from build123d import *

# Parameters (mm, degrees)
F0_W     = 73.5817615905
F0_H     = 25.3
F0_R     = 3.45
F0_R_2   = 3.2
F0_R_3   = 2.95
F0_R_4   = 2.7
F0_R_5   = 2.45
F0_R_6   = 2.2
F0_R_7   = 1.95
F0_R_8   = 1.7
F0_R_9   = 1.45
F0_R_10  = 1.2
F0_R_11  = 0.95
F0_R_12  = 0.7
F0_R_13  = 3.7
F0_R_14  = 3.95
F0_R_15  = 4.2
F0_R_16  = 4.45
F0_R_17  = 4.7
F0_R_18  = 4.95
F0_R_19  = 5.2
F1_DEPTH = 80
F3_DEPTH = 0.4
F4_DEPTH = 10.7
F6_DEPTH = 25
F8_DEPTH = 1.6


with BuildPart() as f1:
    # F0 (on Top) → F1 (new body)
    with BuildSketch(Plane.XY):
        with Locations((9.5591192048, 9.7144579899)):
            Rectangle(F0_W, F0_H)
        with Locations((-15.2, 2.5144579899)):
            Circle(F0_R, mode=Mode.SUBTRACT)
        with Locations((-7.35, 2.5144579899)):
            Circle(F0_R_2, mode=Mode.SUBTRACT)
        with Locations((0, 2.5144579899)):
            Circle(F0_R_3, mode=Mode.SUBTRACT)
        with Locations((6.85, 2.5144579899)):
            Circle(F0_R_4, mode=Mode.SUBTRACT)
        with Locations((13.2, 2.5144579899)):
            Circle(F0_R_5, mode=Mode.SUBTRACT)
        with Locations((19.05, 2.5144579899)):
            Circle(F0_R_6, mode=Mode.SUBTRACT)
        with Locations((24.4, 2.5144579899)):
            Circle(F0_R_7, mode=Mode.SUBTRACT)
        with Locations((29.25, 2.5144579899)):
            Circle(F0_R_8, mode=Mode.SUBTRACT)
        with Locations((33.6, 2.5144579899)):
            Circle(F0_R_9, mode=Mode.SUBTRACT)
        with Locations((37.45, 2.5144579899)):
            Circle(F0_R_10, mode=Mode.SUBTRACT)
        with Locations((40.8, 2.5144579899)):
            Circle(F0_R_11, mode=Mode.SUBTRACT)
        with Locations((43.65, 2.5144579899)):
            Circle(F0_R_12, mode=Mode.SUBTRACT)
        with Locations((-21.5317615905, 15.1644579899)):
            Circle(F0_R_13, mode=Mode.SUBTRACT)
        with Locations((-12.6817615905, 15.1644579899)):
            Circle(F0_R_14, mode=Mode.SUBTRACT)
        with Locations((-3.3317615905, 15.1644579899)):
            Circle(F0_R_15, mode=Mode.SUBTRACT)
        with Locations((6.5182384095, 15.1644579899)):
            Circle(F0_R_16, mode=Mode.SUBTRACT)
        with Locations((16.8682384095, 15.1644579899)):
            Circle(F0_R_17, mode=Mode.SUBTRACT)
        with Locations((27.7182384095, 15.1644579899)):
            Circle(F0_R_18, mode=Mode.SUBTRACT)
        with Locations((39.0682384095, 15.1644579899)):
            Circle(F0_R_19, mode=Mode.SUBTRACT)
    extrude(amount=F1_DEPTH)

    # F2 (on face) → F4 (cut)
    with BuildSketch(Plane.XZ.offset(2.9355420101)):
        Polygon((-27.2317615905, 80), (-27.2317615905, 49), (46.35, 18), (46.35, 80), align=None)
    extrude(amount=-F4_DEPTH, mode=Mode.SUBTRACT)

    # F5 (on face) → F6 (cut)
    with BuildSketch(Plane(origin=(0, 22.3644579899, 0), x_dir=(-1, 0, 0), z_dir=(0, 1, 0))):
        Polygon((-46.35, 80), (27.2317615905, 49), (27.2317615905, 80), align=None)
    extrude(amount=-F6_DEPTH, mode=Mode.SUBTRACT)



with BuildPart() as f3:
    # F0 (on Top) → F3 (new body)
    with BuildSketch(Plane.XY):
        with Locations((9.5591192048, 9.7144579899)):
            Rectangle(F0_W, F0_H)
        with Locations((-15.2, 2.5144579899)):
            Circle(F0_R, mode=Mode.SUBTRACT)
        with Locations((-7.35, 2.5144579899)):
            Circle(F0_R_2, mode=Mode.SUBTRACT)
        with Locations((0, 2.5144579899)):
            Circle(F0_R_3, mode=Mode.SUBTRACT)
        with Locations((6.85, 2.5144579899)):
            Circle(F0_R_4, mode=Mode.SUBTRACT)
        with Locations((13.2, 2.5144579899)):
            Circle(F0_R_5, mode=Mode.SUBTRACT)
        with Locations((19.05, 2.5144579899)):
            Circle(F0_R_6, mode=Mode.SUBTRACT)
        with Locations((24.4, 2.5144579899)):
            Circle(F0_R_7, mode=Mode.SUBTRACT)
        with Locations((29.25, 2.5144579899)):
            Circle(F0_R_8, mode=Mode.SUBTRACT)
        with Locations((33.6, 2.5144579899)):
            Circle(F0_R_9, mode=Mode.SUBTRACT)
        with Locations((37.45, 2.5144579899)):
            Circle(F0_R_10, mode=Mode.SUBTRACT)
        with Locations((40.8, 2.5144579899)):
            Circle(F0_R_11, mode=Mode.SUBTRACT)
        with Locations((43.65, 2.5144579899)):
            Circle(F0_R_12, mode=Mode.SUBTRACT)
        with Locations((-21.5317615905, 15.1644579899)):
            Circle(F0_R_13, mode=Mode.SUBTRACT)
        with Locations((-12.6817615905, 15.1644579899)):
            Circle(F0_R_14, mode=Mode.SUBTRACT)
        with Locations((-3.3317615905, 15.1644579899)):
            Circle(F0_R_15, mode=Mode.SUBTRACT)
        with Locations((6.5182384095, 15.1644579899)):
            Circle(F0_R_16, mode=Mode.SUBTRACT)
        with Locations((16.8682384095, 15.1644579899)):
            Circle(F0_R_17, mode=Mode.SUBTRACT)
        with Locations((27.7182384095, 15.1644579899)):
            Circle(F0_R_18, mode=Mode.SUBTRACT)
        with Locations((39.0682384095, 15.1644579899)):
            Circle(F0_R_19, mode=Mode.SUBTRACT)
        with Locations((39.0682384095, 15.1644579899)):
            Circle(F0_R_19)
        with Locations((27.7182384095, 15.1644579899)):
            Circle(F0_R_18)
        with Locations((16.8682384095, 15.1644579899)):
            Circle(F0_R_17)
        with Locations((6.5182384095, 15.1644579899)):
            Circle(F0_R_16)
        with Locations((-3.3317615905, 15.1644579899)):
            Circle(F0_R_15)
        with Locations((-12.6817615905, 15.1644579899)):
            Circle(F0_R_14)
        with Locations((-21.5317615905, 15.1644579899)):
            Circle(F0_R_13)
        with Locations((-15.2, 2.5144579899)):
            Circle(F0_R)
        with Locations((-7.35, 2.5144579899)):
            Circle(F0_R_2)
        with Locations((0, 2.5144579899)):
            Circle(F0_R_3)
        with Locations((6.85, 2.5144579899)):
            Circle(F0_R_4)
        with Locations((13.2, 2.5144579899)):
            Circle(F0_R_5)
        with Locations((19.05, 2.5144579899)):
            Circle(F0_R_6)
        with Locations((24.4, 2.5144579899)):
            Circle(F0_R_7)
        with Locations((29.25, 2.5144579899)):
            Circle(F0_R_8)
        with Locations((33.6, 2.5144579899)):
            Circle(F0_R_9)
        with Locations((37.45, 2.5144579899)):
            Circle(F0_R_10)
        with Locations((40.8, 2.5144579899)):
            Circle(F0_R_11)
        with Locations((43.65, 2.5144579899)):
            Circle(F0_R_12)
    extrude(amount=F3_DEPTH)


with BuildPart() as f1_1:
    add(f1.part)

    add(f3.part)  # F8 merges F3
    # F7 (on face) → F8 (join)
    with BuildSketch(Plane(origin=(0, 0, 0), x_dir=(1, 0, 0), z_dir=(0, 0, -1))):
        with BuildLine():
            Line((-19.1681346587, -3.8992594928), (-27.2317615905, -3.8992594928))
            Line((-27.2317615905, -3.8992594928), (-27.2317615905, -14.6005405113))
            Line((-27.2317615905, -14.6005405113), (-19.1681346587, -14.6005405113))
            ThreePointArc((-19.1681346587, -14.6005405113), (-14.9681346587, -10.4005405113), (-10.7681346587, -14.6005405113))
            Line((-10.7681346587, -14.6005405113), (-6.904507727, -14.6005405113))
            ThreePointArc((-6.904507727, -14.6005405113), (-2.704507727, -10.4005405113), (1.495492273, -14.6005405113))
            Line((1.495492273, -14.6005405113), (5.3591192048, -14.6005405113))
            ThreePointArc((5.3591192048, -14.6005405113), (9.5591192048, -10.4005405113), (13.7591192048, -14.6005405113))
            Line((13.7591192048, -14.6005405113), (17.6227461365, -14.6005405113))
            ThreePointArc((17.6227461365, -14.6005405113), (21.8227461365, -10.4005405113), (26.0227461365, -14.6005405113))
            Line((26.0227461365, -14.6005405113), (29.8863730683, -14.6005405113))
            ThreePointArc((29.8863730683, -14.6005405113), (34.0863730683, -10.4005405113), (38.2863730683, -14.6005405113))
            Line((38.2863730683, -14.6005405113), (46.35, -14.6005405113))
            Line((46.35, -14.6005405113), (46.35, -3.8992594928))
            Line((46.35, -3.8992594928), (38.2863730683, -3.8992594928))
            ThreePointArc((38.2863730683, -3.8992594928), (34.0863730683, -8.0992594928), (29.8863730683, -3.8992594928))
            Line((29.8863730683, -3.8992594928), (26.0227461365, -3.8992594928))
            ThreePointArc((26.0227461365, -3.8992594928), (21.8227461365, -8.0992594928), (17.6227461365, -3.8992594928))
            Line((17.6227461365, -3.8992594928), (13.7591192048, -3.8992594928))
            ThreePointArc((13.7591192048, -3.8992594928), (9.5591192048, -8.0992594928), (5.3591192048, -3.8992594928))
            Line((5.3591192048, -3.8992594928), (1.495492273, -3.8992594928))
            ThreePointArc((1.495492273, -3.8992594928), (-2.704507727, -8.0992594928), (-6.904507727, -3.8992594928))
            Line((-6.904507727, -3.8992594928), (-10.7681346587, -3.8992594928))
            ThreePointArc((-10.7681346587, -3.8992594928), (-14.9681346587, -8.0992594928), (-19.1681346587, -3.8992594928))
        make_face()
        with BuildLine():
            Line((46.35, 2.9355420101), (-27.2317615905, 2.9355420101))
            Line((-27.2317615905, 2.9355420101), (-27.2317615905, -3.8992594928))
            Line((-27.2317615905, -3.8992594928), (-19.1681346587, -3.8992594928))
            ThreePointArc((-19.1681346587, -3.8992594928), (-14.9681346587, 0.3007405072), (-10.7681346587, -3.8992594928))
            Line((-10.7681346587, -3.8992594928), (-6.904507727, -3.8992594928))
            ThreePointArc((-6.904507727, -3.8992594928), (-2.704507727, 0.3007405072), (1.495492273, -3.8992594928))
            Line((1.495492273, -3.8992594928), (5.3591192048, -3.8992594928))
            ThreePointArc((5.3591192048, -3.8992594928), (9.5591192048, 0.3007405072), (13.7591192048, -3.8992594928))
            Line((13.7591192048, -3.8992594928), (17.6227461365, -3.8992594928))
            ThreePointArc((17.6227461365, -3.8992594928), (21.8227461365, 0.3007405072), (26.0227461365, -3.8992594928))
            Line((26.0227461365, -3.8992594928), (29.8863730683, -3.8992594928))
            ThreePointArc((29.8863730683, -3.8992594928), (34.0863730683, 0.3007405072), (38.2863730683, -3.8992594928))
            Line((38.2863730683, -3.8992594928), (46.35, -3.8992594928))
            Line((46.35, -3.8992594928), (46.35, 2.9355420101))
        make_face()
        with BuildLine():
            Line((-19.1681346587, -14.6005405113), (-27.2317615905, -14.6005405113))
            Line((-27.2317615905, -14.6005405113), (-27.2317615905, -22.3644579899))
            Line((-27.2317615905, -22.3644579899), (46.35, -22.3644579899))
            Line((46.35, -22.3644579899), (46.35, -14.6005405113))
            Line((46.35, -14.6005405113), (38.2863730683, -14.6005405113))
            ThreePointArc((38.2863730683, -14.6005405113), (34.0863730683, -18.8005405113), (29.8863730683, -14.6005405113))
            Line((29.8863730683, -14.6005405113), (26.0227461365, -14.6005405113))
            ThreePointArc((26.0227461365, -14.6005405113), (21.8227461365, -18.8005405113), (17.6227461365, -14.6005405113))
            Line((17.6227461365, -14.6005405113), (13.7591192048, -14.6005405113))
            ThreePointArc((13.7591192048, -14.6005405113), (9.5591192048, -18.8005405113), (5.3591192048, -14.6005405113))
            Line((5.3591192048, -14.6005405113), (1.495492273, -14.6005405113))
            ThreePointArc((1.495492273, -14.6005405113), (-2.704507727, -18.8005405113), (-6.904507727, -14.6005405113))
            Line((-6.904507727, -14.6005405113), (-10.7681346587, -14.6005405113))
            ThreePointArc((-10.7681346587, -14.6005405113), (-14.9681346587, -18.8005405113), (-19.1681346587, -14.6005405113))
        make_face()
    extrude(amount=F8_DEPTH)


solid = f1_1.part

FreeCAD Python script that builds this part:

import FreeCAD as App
import Part
import Sketcher

V = App.Vector
Q = App.Units.Quantity

doc = App.newDocument("Part")
body = doc.addObject("PartDesign::Body", "Body")

# Sketch on XY plane
sketch1 = body.newObject("Sketcher::SketchObject", "Sketch")
sketch1.AttachmentSupport = (doc.getObject("XY_Plane"), [""])
sketch1.MapMode = "FlatFace"
sketch1.addGeometry([
    Part.LineSegment(V(-27.2, 22.4, 0), V(-27.2, -2.9, 0)),  # 0
    Part.LineSegment(V(-27.2, -2.9, 0), V(46.4, -2.9, 0)),  # 1
    Part.LineSegment(V(46.4, -2.9, 0), V(46.4, 22.4, 0)),  # 2
    Part.LineSegment(V(46.4, 22.4, 0), V(-27.2, 22.4, 0)),  # 3
    Part.Circle(V(-15.2, 2.5, 0), V(0, 0, 1), 3.5),  # 4
    Part.Circle(V(-7.3, 2.5, 0), V(0, 0, 1), 3.2),  # 5
    Part.Circle(V(0, 2.5, 0), V(0, 0, 1), 3),  # 6
    Part.Circle(V(6.8, 2.5, 0), V(0, 0, 1), 2.7),  # 7
    Part.Circle(V(13.2, 2.5, 0), V(0, 0, 1), 2.5),  # 8
    Part.Circle(V(19.1, 2.5, 0), V(0, 0, 1), 2.2),  # 9
    Part.Circle(V(24.4, 2.5, 0), V(0, 0, 1), 1.9),  # 10
    Part.Circle(V(29.2, 2.5, 0), V(0, 0, 1), 1.7),  # 11
    Part.Circle(V(33.6, 2.5, 0), V(0, 0, 1), 1.4),  # 12
    Part.Circle(V(37.5, 2.5, 0), V(0, 0, 1), 1.2),  # 13
    Part.Circle(V(40.8, 2.5, 0), V(0, 0, 1), 0.9),  # 14
    Part.Circle(V(43.6, 2.5, 0), V(0, 0, 1), 0.7),  # 15
    Part.Circle(V(-21.5, 15.2, 0), V(0, 0, 1), 3.7),  # 16
    Part.Circle(V(-12.7, 15.2, 0), V(0, 0, 1), 4),  # 17
    Part.Circle(V(-3.3, 15.2, 0), V(0, 0, 1), 4.2),  # 18
    Part.Circle(V(6.5, 15.2, 0), V(0, 0, 1), 4.5),  # 19
    Part.Circle(V(16.9, 15.2, 0), V(0, 0, 1), 4.7),  # 20
    Part.Circle(V(27.7, 15.2, 0), V(0, 0, 1), 5),  # 21
    Part.Circle(V(39.1, 15.2, 0), V(0, 0, 1), 5.2),  # 22
], False)
sketch1.addConstraint([
    Sketcher.Constraint("Coincident", 0, 2, 1, 1),
    Sketcher.Constraint("Coincident", 1, 2, 2, 1),
    Sketcher.Constraint("Coincident", 2, 2, 3, 1),
    Sketcher.Constraint("Coincident", 3, 2, 0, 1),
    Sketcher.Constraint("Vertical", 0),
    Sketcher.Constraint("Horizontal", 1),
    Sketcher.Constraint("Vertical", 2),
    Sketcher.Constraint("Horizontal", 3),
    Sketcher.Constraint("PointOnObject", 6, 3, -2),
    Sketcher.Constraint("Horizontal", 4, 3, 5, 3),
    Sketcher.Constraint("Horizontal", 5, 3, 6, 3),
    Sketcher.Constraint("Horizontal", 6, 3, 7, 3),
    Sketcher.Constraint("Horizontal", 7, 3, 8, 3),
    Sketcher.Constraint("Horizontal", 8, 3, 9, 3),
    Sketcher.Constraint("Horizontal", 9, 3, 10, 3),
    Sketcher.Constraint("Horizontal", 10, 3, 11, 3),
    Sketcher.Constraint("Horizontal", 11, 3, 12, 3),
    Sketcher.Constraint("Horizontal", 12, 3, 13, 3),
    Sketcher.Constraint("Horizontal", 13, 3, 14, 3),
    Sketcher.Constraint("Horizontal", 14, 3, 15, 3),
    Sketcher.Constraint("Horizontal", 16, 3, 17, 3),
    Sketcher.Constraint("Horizontal", 17, 3, 18, 3),
    Sketcher.Constraint("Horizontal", 18, 3, 19, 3),
    Sketcher.Constraint("Horizontal", 19, 3, 20, 3),
    Sketcher.Constraint("Horizontal", 20, 3, 21, 3),
    Sketcher.Constraint("Horizontal", 21, 3, 22, 3),
    Sketcher.Constraint("Diameter", 4, Q("6.9 mm")),
    Sketcher.Constraint("Diameter", 5, Q("6.4 mm")),
    Sketcher.Constraint("Diameter", 6, Q("5.9 mm")),
    Sketcher.Constraint("Diameter", 7, Q("5.4 mm")),
    Sketcher.Constraint("Diameter", 8, Q("4.9 mm")),
    Sketcher.Constraint("Diameter", 9, Q("4.4 mm")),
    Sketcher.Constraint("Diameter", 10, Q("3.9 mm")),
    Sketcher.Constraint("Diameter", 11, Q("3.4 mm")),
    Sketcher.Constraint("Diameter", 12, Q("2.9 mm")),
    Sketcher.Constraint("Diameter", 13, Q("2.4 mm")),
    Sketcher.Constraint("Diameter", 14, Q("1.9 mm")),
    Sketcher.Constraint("Diameter", 15, Q("1.4 mm")),
    Sketcher.Constraint("Diameter", 16, Q("7.4 mm")),
    Sketcher.Constraint("Diameter", 17, Q("7.9 mm")),
    Sketcher.Constraint("Diameter", 18, Q("8.4 mm")),
    Sketcher.Constraint("Diameter", 19, Q("8.9 mm")),
    Sketcher.Constraint("Diameter", 20, Q("9.4 mm")),
    Sketcher.Constraint("Diameter", 21, Q("9.9 mm")),
    Sketcher.Constraint("Diameter", 22, Q("10.4 mm")),
    Sketcher.Constraint("DistanceY", 0, 2, 0, 1, Q("25.3 mm")),
    Sketcher.Constraint("DistanceX", 4, 3, -1, 1, Q("15.2 mm")),
    Sketcher.Constraint("DistanceX", -1, 1, 8, 3, Q("13.2 mm")),
    Sketcher.Constraint("DistanceX", -1, 1, 10, 3, Q("24.4 mm")),
    Sketcher.Constraint("DistanceX", -1, 1, 12, 3, Q("33.6 mm")),
    Sketcher.Constraint("DistanceX", -1, 1, 14, 3, Q("40.8 mm")),
    Sketcher.Constraint("DistanceX", 5, 3, 7, 3, Q("14.2 mm")),
    Sketcher.Constraint("DistanceX", 7, 3, 9, 3, Q("12.2 mm")),
    Sketcher.Constraint("DistanceX", 9, 3, 11, 3, Q("10.2 mm")),
    Sketcher.Constraint("DistanceX", 11, 3, 13, 3, Q("8.2 mm")),
    Sketcher.Constraint("DistanceX", 13, 3, 15, 3, Q("6.2 mm")),
    Sketcher.Constraint("DistanceX", 0, 2, 16, 3, Q("5.7 mm")),
    Sketcher.Constraint("DistanceY", 0, 2, 16, 3, Q("18.1 mm")),
    Sketcher.Constraint("DistanceX", 15, 3, 1, 2, Q("2.7 mm")),
    Sketcher.Constraint("DistanceX", 3, 2, 18, 3, Q("23.9 mm")),
    Sketcher.Constraint("DistanceX", 5, 3, -1, 1, Q("7.35 mm")),
    Sketcher.Constraint("DistanceY", 4, 3, 16, 3, Q("12.65 mm")),
    Sketcher.Constraint("DistanceX", 16, 3, 17, 3, Q("8.85 mm")),
    Sketcher.Constraint("DistanceX", 18, 3, 19, 3, Q("9.85 mm")),
    Sketcher.Constraint("DistanceX", 19, 3, 20, 3, Q("10.35 mm")),
    Sketcher.Constraint("DistanceX", 20, 3, 21, 3, Q("10.85 mm")),
    Sketcher.Constraint("DistanceX", 21, 3, 22, 3, Q("11.35 mm")),
    Sketcher.Constraint("DistanceX", 1, 1, 1, 2, Q("73.581762 mm")),
    Sketcher.Constraint("DistanceY", -1, 1, 4, 3, Q("2.514458 mm")),
])
pad1 = body.newObject("PartDesign::Pad", "Pad")
pad1.Profile = sketch1
pad1.Length = 80

# Sketch on XZ plane
sketch2 = body.newObject("Sketcher::SketchObject", "Sketch001")
sketch2.AttachmentSupport = (doc.getObject("XZ_Plane"), [""])
sketch2.MapMode = "FlatFace"
sketch2.AttachmentOffset = App.Placement(V(0, 0, 2.935542), App.Rotation())
sketch2.addGeometry([
    Part.LineSegment(V(-27, 80, 0), V(-27, 49, 0)),
    Part.LineSegment(V(-27, 49, 0), V(46, 18, 0)),
    Part.LineSegment(V(46, 18, 0), V(46, 80, 0)),
    Part.LineSegment(V(46, 80, 0), V(-27, 80, 0)),
], False)
sketch2.addConstraint([
    Sketcher.Constraint("Coincident", 0, 2, 1, 1),
    Sketcher.Constraint("Coincident", 1, 2, 2, 1),
    Sketcher.Constraint("Coincident", 2, 2, 3, 1),
    Sketcher.Constraint("Coincident", 3, 2, 0, 1),
    Sketcher.Constraint("Vertical", 0),
    Sketcher.Constraint("Vertical", 2),
    Sketcher.Constraint("Horizontal", 3),
    Sketcher.Constraint("DistanceY", 0, 2, 0, 1, Q("31 mm")),
    Sketcher.Constraint("DistanceY", 2, 1, 2, 2, Q("62 mm")),
    Sketcher.Constraint("DistanceY", -1, 1, 0, 2, Q("49 mm")),
    Sketcher.Constraint("DistanceX", -1, 1, 1, 2, Q("46.35 mm")),
    Sketcher.Constraint("DistanceX", 3, 2, 3, 1, Q("73.581762 mm")),
])
pocket1 = body.newObject("PartDesign::Pocket", "Pocket")
pocket1.Profile = sketch2
pocket1.Length = 10.7

# Sketch on XZ plane
sketch3 = body.newObject("Sketcher::SketchObject", "Sketch002")
sketch3.AttachmentSupport = (doc.getObject("XZ_Plane"), [""])
sketch3.MapMode = "FlatFace"
sketch3.AttachmentOffset = App.Placement(V(0, 0, -22.364458), App.Rotation())
sketch3.addGeometry([
    Part.LineSegment(V(46, 80, 0), V(-27, 49, 0)),
    Part.LineSegment(V(-27, 49, 0), V(-27, 80, 0)),
    Part.LineSegment(V(-27, 80, 0), V(46, 80, 0)),
], False)
sketch3.addConstraint([
    Sketcher.Constraint("Coincident", 0, 2, 1, 1),
    Sketcher.Constraint("Coincident", 1, 2, 2, 1),
    Sketcher.Constraint("Coincident", 2, 2, 0, 1),
    Sketcher.Constraint("Vertical", 1),
    Sketcher.Constraint("Horizontal", 2),
    Sketcher.Constraint("DistanceY", 1, 1, 1, 2, Q("31 mm")),
    Sketcher.Constraint("DistanceY", -1, 1, 0, 2, Q("49 mm")),
    Sketcher.Constraint("DistanceX", -1, 1, 2, 2, Q("46.35 mm")),
    Sketcher.Constraint("DistanceX", 2, 1, 2, 2, Q("73.581762 mm")),
])
pocket2 = body.newObject("PartDesign::Pocket", "Pocket001")
pocket2.Profile = sketch3
pocket2.Length = 25
pocket2.Reversed = True
body2 = doc.addObject("PartDesign::Body", "Body001")

# Sketch on XY plane
sketch4 = body2.newObject("Sketcher::SketchObject", "Sketch003")
sketch4.AttachmentSupport = (doc.getObject("XY_Plane001"), [""])
sketch4.MapMode = "FlatFace"
sketch4.addGeometry([
    Part.LineSegment(V(-27, 22, 0), V(-27, -3, 0)),
    Part.LineSegment(V(-27, -3, 0), V(46, -3, 0)),
    Part.LineSegment(V(46, -3, 0), V(46, 22, 0)),
    Part.LineSegment(V(46, 22, 0), V(-27, 22, 0)),
], False)
sketch4.addConstraint([
    Sketcher.Constraint("Coincident", 0, 2, 1, 1),
    Sketcher.Constraint("Coincident", 1, 2, 2, 1),
    Sketcher.Constraint("Coincident", 2, 2, 3, 1),
    Sketcher.Constraint("Coincident", 3, 2, 0, 1),
    Sketcher.Constraint("Vertical", 0),
    Sketcher.Constraint("Horizontal", 1),
    Sketcher.Constraint("Vertical", 2),
    Sketcher.Constraint("Horizontal", 3),
    Sketcher.Constraint("DistanceY", 0, 2, 0, 1, Q("25.3 mm")),
    Sketcher.Constraint("DistanceX", -1, 1, 1, 2, Q("46.35 mm")),
    Sketcher.Constraint("DistanceX", 1, 1, 1, 2, Q("73.581762 mm")),
    Sketcher.Constraint("DistanceY", 0, 2, -1, 1, Q("2.935542 mm")),
])
pad2 = body2.newObject("PartDesign::Pad", "Pad001")
pad2.Profile = sketch4
pad2.Length = 0.4
doc.recompute()

boolean = body.newObject("PartDesign::Boolean", "Boolean")
boolean.Type = "Fuse"
boolean.addObjects([body2])

# Sketch on XY plane
sketch5 = body.newObject("Sketcher::SketchObject", "Sketch004")
sketch5.AttachmentSupport = (doc.getObject("XY_Plane"), [""])
sketch5.MapMode = "FlatFace"
sketch5.addGeometry([
    Part.LineSegment(V(46.4, -2.9, 0), V(-27.2, -2.9, 0)),  # 0
    Part.LineSegment(V(-27.2, -2.9, 0), V(-27.2, 22.4, 0)),  # 1
    Part.LineSegment(V(-27.2, 22.4, 0), V(46.4, 22.4, 0)),  # 2
    Part.LineSegment(V(46.4, 22.4, 0), V(46.4, -2.9, 0)),  # 3
    Part.Circle(V(-15, 14.6, 0), V(0, 0, 1), 4.2),  # 4
    Part.Circle(V(-2.7, 14.6, 0), V(0, 0, 1), 4.2),  # 5
    Part.Circle(V(9.6, 14.6, 0), V(0, 0, 1), 4.2),  # 6
    Part.Circle(V(21.8, 14.6, 0), V(0, 0, 1), 4.2),  # 7
    Part.Circle(V(34.1, 14.6, 0), V(0, 0, 1), 4.2),  # 8
    Part.Circle(V(34.1, 3.9, 0), V(0, 0, 1), 4.2),  # 9
    Part.Circle(V(21.8, 3.9, 0), V(0, 0, 1), 4.2),  # 10
    Part.Circle(V(9.6, 3.9, 0), V(0, 0, 1), 4.2),  # 11
    Part.Circle(V(-2.7, 3.9, 0), V(0, 0, 1), 4.2),  # 12
    Part.Circle(V(-15, 3.9, 0), V(0, 0, 1), 4.2),  # 13
], False)
sketch5.addConstraint([
    Sketcher.Constraint("Coincident", 0, 2, 1, 1),
    Sketcher.Constraint("Coincident", 1, 2, 2, 1),
    Sketcher.Constraint("Coincident", 2, 2, 3, 1),
    Sketcher.Constraint("Coincident", 3, 2, 0, 1),
    Sketcher.Constraint("Horizontal", 0),
    Sketcher.Constraint("Vertical", 1),
    Sketcher.Constraint("Horizontal", 2),
    Sketcher.Constraint("Vertical", 3),
    Sketcher.Constraint("Equal", 4, 5),
    Sketcher.Constraint("Equal", 5, 6),
    Sketcher.Constraint("Equal", 6, 7),
    Sketcher.Constraint("Equal", 7, 8),
    Sketcher.Constraint("Equal", 8, 9),
    Sketcher.Constraint("Equal", 9, 10),
    Sketcher.Constraint("Equal", 10, 11),
    Sketcher.Constraint("Equal", 11, 12),
    Sketcher.Constraint("Equal", 12, 13),
    Sketcher.Constraint("Horizontal", 4, 3, 5, 3),
    Sketcher.Constraint("Horizontal", 5, 3, 6, 3),
    Sketcher.Constraint("Horizontal", 6, 3, 7, 3),
    Sketcher.Constraint("Horizontal", 7, 3, 8, 3),
    Sketcher.Constraint("Horizontal", 9, 3, 10, 3),
    Sketcher.Constraint("Horizontal", 10, 3, 11, 3),
    Sketcher.Constraint("Horizontal", 11, 3, 12, 3),
    Sketcher.Constraint("Horizontal", 12, 3, 13, 3),
    Sketcher.Constraint("Vertical", 8, 3, 9, 3),
    Sketcher.Constraint("Vertical", 7, 3, 10, 3),
    Sketcher.Constraint("Vertical", 6, 3, 11, 3),
    Sketcher.Constraint("Vertical", 5, 3, 12, 3),
    Sketcher.Constraint("Vertical", 4, 3, 13, 3),
    Sketcher.Constraint("Diameter", 4, Q("8.4 mm")),
    Sketcher.Constraint("DistanceY", 1, 1, 1, 2, Q("25.3 mm")),
    Sketcher.Constraint("DistanceX", -1, 1, 2, 2, Q("46.35 mm")),
    Sketcher.Constraint("DistanceX", 0, 2, 0, 1, Q("73.581762 mm")),
    Sketcher.Constraint("DistanceY", 0, 2, 13, 3, Q("6.834802 mm")),
    Sketcher.Constraint("DistanceY", -1, 1, 4, 3, Q("14.600541 mm")),
    Sketcher.Constraint("DistanceX", -1, 1, 6, 3, Q("9.559119 mm")),
    Sketcher.Constraint("DistanceY", -1, 1, 9, 3, Q("3.899259 mm")),
    Sketcher.Constraint("DistanceX", 4, 3, 7, 3, Q("36.790881 mm")),
    Sketcher.Constraint("DistanceX", 5, 3, 8, 3, Q("36.790881 mm")),
    Sketcher.Constraint("DistanceX", 4, 3, -1, 1, Q("14.968135 mm")),
    Sketcher.Constraint("DistanceX", 5, 3, -1, 1, Q("2.704508 mm")),
])
pad3 = body.newObject("PartDesign::Pad", "Pad002")
pad3.Profile = sketch5
pad3.Length = 1.6
pad3.Reversed = True

doc.recompute()
